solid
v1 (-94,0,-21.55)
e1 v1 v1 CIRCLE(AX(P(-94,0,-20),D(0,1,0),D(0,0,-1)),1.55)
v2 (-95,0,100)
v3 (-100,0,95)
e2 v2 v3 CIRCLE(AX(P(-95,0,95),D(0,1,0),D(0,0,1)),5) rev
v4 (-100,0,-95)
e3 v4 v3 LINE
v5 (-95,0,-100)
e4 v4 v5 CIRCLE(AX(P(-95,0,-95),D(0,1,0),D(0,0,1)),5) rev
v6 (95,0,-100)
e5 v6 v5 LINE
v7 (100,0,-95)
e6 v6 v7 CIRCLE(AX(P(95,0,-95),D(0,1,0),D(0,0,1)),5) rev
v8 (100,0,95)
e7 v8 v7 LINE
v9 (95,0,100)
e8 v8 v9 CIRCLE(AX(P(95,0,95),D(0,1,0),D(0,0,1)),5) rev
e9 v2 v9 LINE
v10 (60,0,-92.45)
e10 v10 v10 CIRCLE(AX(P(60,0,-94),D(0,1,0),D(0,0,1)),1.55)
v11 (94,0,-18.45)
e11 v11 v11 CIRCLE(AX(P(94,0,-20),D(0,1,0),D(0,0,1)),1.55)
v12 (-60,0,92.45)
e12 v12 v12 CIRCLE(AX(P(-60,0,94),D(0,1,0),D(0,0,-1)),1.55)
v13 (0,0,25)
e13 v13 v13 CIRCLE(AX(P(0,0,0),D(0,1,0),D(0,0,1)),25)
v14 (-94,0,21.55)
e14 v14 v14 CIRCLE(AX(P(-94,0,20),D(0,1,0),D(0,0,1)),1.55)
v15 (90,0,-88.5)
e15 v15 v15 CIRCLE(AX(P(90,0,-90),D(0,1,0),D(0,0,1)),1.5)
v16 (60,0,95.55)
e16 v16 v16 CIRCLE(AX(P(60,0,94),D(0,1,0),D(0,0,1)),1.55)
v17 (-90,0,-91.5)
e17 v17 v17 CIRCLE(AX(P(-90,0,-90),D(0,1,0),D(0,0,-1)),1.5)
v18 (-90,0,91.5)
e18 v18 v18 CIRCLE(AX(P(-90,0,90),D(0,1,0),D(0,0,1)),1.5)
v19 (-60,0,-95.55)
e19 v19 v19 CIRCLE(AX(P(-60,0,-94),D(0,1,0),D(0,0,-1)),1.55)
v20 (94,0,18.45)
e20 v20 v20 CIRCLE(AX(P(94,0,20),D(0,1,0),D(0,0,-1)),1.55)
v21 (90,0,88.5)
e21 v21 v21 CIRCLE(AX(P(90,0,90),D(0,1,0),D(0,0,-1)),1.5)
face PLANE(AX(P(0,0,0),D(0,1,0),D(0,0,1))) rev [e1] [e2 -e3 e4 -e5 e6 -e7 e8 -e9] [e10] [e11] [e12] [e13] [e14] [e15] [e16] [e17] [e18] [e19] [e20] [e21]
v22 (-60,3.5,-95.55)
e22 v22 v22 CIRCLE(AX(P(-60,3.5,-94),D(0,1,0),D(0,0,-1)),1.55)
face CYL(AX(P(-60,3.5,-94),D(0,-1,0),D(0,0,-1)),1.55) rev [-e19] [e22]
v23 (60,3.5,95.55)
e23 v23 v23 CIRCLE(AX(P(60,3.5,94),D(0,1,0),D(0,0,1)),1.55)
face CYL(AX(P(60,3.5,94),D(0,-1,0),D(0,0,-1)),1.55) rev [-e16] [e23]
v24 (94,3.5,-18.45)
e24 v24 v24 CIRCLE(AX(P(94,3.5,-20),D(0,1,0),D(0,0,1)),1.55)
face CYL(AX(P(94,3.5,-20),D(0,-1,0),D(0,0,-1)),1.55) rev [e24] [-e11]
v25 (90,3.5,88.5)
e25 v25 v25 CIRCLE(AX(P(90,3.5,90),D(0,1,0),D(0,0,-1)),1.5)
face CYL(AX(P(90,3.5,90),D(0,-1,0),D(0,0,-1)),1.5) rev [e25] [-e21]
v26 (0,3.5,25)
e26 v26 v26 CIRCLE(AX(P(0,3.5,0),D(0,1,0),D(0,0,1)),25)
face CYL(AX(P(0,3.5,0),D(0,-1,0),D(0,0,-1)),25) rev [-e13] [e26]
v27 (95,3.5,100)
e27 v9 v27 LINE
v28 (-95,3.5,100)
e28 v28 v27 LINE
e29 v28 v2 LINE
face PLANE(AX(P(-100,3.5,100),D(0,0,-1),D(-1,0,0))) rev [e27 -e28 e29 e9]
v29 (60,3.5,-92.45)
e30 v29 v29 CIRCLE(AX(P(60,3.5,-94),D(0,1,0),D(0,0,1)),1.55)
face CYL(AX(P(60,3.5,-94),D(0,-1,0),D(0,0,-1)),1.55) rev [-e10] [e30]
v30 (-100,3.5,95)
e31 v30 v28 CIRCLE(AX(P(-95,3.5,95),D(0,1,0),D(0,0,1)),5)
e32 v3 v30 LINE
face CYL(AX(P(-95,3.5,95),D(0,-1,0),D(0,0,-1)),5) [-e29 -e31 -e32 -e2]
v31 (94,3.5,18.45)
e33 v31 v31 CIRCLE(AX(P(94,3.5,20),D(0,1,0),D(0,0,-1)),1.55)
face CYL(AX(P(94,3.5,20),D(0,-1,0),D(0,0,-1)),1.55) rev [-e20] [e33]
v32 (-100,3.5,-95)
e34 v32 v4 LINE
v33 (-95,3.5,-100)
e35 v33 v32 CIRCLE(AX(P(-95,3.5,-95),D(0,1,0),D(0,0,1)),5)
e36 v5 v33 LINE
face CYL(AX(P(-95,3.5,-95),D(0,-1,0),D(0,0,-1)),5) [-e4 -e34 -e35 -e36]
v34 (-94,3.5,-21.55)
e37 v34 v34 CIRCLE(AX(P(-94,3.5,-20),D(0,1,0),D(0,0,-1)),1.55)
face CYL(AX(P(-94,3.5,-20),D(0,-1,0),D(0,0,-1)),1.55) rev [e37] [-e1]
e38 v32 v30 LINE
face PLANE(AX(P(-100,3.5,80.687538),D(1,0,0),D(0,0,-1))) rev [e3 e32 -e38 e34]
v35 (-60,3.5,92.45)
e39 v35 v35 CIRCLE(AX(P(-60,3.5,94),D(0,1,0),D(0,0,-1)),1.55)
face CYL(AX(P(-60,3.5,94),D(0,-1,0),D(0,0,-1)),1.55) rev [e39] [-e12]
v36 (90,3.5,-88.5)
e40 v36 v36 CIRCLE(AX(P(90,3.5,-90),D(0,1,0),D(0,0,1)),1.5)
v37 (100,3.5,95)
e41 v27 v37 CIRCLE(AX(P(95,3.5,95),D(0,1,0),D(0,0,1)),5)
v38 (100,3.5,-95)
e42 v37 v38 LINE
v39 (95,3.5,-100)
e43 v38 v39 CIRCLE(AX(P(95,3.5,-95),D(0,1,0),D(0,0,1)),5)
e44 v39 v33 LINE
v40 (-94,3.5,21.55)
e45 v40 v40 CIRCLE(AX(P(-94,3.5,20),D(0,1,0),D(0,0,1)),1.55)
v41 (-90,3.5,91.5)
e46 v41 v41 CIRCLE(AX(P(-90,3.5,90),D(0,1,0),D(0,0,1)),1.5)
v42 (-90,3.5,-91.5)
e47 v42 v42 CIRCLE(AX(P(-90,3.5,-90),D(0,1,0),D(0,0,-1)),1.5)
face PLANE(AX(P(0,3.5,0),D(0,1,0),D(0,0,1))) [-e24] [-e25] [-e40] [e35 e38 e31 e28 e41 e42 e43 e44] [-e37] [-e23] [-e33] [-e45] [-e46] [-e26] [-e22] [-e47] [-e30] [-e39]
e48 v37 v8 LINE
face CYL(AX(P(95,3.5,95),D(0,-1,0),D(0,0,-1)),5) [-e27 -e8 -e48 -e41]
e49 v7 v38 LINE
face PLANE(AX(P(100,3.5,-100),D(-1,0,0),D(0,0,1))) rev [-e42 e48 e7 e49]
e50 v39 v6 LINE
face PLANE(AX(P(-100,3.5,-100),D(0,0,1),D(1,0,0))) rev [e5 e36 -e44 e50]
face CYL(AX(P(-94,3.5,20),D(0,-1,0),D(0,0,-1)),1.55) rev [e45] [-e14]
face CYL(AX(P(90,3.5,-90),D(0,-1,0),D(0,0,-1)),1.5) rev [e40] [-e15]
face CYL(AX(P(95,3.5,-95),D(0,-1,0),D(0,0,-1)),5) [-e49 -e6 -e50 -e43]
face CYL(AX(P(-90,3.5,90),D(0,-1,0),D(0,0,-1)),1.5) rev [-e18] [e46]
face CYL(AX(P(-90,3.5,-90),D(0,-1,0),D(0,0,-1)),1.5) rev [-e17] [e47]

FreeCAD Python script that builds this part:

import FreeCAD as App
import Part
import Sketcher


def edges_at(feature, points):
    """Names of the edges that pass closest to the given points."""
    edges = feature.Shape.Edges
    near = lambda p: min(range(len(edges)), key=lambda i: edges[i].distToShape(Part.Vertex(*p))[0])
    return sorted({f"Edge{near(p) + 1}" for p in points})


def add_polygon(sketch, points):
    """Adds a closed chain of lines whose ends are joined by coincident constraints."""
    first, n = sketch.GeometryCount, len(points)
    for a, b in zip(points, points[1:] + points[:1]):
        sketch.addGeometry(Part.LineSegment(App.Vector(*a, 0), App.Vector(*b, 0)), False)
    for i in range(n):
        sketch.addConstraint(Sketcher.Constraint("Coincident", first + i, 2, first + (i + 1) % n, 1))

doc = App.newDocument("Part")
body = doc.addObject("PartDesign::Body", "Body")

# Sketch on XZ plane
sketch1 = body.newObject("Sketcher::SketchObject", "Sketch")
sketch1.AttachmentSupport = (doc.getObject("XZ_Plane"), [""])
sketch1.MapMode = "FlatFace"
add_polygon(sketch1, [(100, -100), (-100, -100), (-100, 100), (100, 100)])  # lines 0-3
sketch1.addGeometry(Part.Circle(App.Vector(90, 90, 0), App.Vector(0, 0, 1), 1.5), False)  # 4
sketch1.addGeometry(Part.Circle(App.Vector(60, 94, 0), App.Vector(0, 0, 1), 1.6), False)  # 5
sketch1.addGeometry(Part.Circle(App.Vector(94, 20, 0), App.Vector(0, 0, 1), 1.6), False)  # 6
sketch1.addGeometry(Part.Circle(App.Vector(-60, 94, 0), App.Vector(0, 0, 1), 1.6), False)  # 7
sketch1.addGeometry(Part.Circle(App.Vector(-90, 90, 0), App.Vector(0, 0, 1), 1.5), False)  # 8
sketch1.addGeometry(Part.Circle(App.Vector(-94, 20, 0), App.Vector(0, 0, 1), 1.6), False)  # 9
sketch1.addGeometry(Part.Circle(App.Vector(94, -20, 0), App.Vector(0, 0, 1), 1.6), False)  # 10
sketch1.addGeometry(Part.Circle(App.Vector(90, -90, 0), App.Vector(0, 0, 1), 1.5), False)  # 11
sketch1.addGeometry(Part.Circle(App.Vector(60, -94, 0), App.Vector(0, 0, 1), 1.6), False)  # 12
sketch1.addGeometry(Part.Circle(App.Vector(0, 0, 0), App.Vector(0, 0, 1), 25), False)  # 13
sketch1.addGeometry(Part.Circle(App.Vector(-94, -20, 0), App.Vector(0, 0, 1), 1.6), False)  # 14
sketch1.addGeometry(Part.Circle(App.Vector(-60, -94, 0), App.Vector(0, 0, 1), 1.6), False)  # 15
sketch1.addGeometry(Part.Circle(App.Vector(-90, -90, 0), App.Vector(0, 0, 1), 1.5), False)  # 16
sketch1.addConstraint(Sketcher.Constraint("Horizontal", 0))
sketch1.addConstraint(Sketcher.Constraint("Vertical", 1))
sketch1.addConstraint(Sketcher.Constraint("Horizontal", 2))
sketch1.addConstraint(Sketcher.Constraint("Vertical", 3))
sketch1.addConstraint(Sketcher.Constraint("Coincident", 13, 3, -1, 1))
sketch1.addConstraint(Sketcher.Constraint("Equal", 5, 6))
sketch1.addConstraint(Sketcher.Constraint("Equal", 6, 7))
sketch1.addConstraint(Sketcher.Constraint("Equal", 4, 8))
sketch1.addConstraint(Sketcher.Constraint("Equal", 7, 9))
sketch1.addConstraint(Sketcher.Constraint("Equal", 9, 10))
sketch1.addConstraint(Sketcher.Constraint("Equal", 8, 11))
sketch1.addConstraint(Sketcher.Constraint("Equal", 10, 12))
sketch1.addConstraint(Sketcher.Constraint("Equal", 12, 14))
sketch1.addConstraint(Sketcher.Constraint("Equal", 14, 15))
sketch1.addConstraint(Sketcher.Constraint("Equal", 11, 16))
sketch1.addConstraint(Sketcher.Constraint("Symmetric", 9, 3, 10, 3, -1, 1))
sketch1.addConstraint(Sketcher.Constraint("Symmetric", 8, 3, 11, 3, -1, 1))
sketch1.addConstraint(Sketcher.Constraint("Symmetric", 7, 3, 12, 3, -1, 1))
sketch1.addConstraint(Sketcher.Constraint("Symmetric", 6, 3, 14, 3, -1, 1))
sketch1.addConstraint(Sketcher.Constraint("Symmetric", 5, 3, 15, 3, -1, 1))
sketch1.addConstraint(Sketcher.Constraint("Symmetric", 4, 3, 16, 3, -1, 1))
sketch1.addConstraint(Sketcher.Constraint("Symmetric", 0, 2, 2, 2, -1, 1))
sketch1.addConstraint(Sketcher.Constraint("Symmetric", 5, 3, 7, 3, -2))
sketch1.addConstraint(Sketcher.Constraint("Symmetric", 4, 3, 8, 3, -2))
sketch1.addConstraint(Sketcher.Constraint("Symmetric", 6, 3, 9, 3, -2))
sketch1.addConstraint(Sketcher.Constraint("Equal", 2, 1))
sketch1.addConstraint(Sketcher.Constraint("Diameter", 4, 3.0))
sketch1.addConstraint(Sketcher.Constraint("Diameter", 13, 50.0))
sketch1.addConstraint(Sketcher.Constraint("Diameter", 5, 3.1))
sketch1.addConstraint(Sketcher.Constraint("DistanceX", 0, 2, 0, 1, 200.0))
sketch1.addConstraint(Sketcher.Constraint("DistanceX", -1, 1, 4, 3, 90.0))
sketch1.addConstraint(Sketcher.Constraint("DistanceY", -1, 1, 4, 3, 90.0))
sketch1.addConstraint(Sketcher.Constraint("DistanceX", -1, 1, 5, 3, 60.0))
sketch1.addConstraint(Sketcher.Constraint("DistanceY", -1, 1, 5, 3, 94.0))
sketch1.addConstraint(Sketcher.Constraint("DistanceX", -1, 1, 6, 3, 94.0))
sketch1.addConstraint(Sketcher.Constraint("DistanceY", -1, 1, 6, 3, 20.0))
pad1 = body.newObject("PartDesign::Pad", "Pad")
pad1.Profile = sketch1
pad1.Length = 3.5
pad1.Reversed = True
doc.recompute()

fillet = body.newObject("PartDesign::Fillet", "Fillet")
fillet.Base = (pad1, edges_at(pad1, [
    (-100, 1.75, -100),
    (100, 1.75, -100),
    (100, 1.75, 100),
    (-100, 1.75, 100),
]))
fillet.Radius = 5

doc.recompute()
